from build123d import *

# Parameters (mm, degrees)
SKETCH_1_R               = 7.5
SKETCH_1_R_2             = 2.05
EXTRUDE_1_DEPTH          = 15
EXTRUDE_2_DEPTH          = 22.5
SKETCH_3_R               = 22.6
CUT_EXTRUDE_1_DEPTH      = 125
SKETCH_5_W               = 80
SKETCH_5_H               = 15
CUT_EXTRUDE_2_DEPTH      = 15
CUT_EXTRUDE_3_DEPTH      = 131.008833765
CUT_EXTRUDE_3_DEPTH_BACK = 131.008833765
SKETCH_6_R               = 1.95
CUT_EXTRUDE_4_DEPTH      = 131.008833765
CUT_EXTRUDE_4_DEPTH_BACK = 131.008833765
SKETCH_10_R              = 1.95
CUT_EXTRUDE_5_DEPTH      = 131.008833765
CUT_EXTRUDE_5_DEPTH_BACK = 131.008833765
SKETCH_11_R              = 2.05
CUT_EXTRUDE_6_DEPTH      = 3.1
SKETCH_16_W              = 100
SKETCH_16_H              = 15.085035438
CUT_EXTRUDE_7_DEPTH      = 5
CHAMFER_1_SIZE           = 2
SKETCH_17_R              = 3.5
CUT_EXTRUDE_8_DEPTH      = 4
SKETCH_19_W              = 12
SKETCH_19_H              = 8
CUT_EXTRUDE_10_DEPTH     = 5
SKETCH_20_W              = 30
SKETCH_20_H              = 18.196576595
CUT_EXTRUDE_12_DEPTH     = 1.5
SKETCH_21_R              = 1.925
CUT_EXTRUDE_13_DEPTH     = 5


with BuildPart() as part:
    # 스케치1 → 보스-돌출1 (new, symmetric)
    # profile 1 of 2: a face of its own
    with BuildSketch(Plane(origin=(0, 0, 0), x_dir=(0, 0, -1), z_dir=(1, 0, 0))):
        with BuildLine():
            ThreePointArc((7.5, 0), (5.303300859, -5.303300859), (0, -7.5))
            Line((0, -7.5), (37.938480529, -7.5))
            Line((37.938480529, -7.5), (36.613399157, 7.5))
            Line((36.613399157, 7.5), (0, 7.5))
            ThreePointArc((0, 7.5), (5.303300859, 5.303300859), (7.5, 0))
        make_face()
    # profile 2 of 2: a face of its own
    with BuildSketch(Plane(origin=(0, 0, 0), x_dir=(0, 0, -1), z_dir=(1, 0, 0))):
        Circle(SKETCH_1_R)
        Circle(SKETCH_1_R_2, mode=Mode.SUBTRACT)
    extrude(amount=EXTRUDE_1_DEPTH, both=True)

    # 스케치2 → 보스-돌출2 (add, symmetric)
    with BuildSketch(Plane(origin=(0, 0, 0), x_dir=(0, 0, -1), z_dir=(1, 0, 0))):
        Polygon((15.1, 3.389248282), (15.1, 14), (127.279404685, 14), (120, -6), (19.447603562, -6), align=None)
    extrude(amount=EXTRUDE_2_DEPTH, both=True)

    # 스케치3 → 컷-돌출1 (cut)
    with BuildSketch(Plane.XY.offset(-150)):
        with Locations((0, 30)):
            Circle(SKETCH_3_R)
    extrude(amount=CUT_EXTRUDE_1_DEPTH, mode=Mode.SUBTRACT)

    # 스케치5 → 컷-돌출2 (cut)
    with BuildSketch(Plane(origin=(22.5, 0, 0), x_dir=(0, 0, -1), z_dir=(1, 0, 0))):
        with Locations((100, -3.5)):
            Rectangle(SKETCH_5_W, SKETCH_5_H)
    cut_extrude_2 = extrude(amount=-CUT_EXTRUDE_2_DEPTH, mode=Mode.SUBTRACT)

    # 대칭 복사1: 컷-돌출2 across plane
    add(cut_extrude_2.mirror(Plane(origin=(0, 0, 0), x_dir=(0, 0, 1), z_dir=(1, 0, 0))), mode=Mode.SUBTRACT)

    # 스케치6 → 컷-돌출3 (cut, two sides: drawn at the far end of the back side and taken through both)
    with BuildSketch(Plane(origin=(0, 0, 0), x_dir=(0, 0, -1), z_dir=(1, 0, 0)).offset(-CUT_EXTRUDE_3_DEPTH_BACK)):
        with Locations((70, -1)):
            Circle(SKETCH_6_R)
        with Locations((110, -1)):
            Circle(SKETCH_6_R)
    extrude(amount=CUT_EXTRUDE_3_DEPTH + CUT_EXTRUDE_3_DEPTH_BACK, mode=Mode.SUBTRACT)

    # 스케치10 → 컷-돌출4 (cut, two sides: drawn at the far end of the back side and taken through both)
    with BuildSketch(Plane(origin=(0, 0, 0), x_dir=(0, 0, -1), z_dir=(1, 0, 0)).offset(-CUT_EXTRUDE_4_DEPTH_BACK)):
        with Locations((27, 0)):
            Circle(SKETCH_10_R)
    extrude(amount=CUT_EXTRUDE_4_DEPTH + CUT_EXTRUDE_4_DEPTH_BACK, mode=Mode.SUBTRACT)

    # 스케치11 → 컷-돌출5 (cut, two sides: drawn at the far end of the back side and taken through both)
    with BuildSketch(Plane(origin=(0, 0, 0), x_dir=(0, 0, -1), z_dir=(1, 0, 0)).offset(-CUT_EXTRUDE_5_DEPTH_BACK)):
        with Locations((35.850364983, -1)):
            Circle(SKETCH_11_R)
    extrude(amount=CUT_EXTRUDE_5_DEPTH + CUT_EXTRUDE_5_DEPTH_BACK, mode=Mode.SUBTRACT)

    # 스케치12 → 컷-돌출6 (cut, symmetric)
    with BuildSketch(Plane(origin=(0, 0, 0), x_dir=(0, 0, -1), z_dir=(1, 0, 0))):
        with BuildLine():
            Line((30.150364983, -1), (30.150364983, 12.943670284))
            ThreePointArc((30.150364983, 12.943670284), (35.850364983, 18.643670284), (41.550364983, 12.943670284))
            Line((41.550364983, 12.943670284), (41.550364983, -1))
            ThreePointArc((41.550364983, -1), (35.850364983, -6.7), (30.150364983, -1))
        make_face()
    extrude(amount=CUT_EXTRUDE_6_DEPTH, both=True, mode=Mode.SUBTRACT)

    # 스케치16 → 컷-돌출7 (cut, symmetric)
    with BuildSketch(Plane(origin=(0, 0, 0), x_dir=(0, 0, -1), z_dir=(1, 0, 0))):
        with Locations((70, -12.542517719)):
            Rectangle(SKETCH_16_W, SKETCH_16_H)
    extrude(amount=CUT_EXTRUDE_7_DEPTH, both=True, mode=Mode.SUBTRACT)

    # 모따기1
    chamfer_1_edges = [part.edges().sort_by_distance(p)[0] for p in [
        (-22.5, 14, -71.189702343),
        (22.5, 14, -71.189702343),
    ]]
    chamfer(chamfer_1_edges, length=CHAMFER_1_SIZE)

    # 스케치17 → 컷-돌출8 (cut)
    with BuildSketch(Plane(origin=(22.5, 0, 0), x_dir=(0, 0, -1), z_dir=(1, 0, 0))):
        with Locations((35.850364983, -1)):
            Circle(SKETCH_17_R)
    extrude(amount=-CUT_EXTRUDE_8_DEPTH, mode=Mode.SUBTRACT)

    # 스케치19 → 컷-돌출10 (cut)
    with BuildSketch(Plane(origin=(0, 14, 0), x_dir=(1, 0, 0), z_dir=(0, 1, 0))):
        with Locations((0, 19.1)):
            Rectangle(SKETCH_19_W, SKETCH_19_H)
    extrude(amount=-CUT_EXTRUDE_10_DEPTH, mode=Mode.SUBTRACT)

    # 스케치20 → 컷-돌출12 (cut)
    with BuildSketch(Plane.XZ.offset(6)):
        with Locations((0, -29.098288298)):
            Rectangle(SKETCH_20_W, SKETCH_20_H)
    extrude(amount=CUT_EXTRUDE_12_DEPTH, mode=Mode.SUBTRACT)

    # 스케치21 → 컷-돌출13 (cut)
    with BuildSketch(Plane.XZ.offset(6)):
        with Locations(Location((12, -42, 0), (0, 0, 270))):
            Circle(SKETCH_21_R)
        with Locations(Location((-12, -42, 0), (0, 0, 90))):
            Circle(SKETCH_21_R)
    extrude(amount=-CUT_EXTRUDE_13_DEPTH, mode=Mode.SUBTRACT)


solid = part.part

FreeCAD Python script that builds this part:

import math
import FreeCAD as App
import Part
import Sketcher
Q = App.Units.Quantity


def edges_at(feature, points):
    """Names of the edges that pass closest to the given points."""
    edges = feature.Shape.Edges
    near = lambda p: min(range(len(edges)), key=lambda i: edges[i].distToShape(Part.Vertex(*p))[0])
    return sorted({f"Edge{near(p) + 1}" for p in points})

doc = App.newDocument("Part")
params = doc.addObject("Spreadsheet::Sheet", "Params")
for row, (alias, value) in enumerate([
    ("sketch1_diameter", "4.1 mm"),
    ("sketch1_radius", "7.5 mm"),
    ("pad1_length", "30 mm"),
    ("pad2_length", "45 mm"),
    ("sketch3_diameter", "45.2 mm"),
    ("pocket1_length", "125 mm"),
    ("sketch4_width", "15 mm"),
    ("sketch4_height", "80 mm"),
    ("pocket2_length", "15 mm"),
    ("sketch5_diameter", "3.9 mm"),
    ("sketch6_diameter", "3.9 mm"),
    ("sketch7_diameter", "4.1 mm"),
    ("sketch8_radius", "5.7 mm"),
    ("pocket6_length", "6.2 mm"),
    ("sketch9_height", "100 mm"),
    ("pocket7_length", "10 mm"),
    ("chamfer_size", "2 mm"),
    ("sketch10_diameter", "7 mm"),
    ("pocket8_length", "4 mm"),
    ("sketch11_width", "12 mm"),
    ("sketch11_height", "8 mm"),
    ("pocket9_length", "5 mm"),
    ("sketch12_width", "30 mm"),
    ("pocket10_length", "1.5 mm"),
    ("sketch13_diameter", "3.85 mm"),
    ("pocket11_length", "5 mm"),
], start=1):
    params.set(f"A{row}", alias)
    params.set(f"B{row}", "=" + value)
    params.setAlias(f"B{row}", alias)

body = doc.addObject("PartDesign::Body", "Body")

sketch1 = body.newObject("Sketcher::SketchObject", "Sketch")
sketch1.AttachmentSupport = (doc.getObject("YZ_Plane"), [""])
sketch1.MapMode = "FlatFace"
sketch1.addGeometry([
    Part.LineSegment(App.Vector(-7.5, 0, 0), App.Vector(-7.5, -37.938481, 0)),
    Part.LineSegment(App.Vector(-7.5, -37.938481, 0), App.Vector(7.5, -36.613399, 0)),
    Part.LineSegment(App.Vector(7.5, -36.613399, 0), App.Vector(7.5, 0, 0)),
    Part.ArcOfCircle(Part.Circle(App.Vector(0, 0, 0), App.Vector(0, 0, 1), 7.5), math.radians(0), math.radians(180)),
    Part.Circle(App.Vector(0, 0, 0), App.Vector(0, 0, 1), 2.05),
], False)
sketch1.addConstraint([
    Sketcher.Constraint("Coincident", 0, 2, 1, 1),
    Sketcher.Constraint("Coincident", 1, 2, 2, 1),
    Sketcher.Constraint("Tangent", 2, 2, 3, 1),
    Sketcher.Constraint("Tangent", 3, 2, 0, 1),
    Sketcher.Constraint("Vertical", 0),
    Sketcher.Constraint("Vertical", 2),
    Sketcher.Constraint("Coincident", 3, 3, -1, 1),
    Sketcher.Constraint("Coincident", 4, 3, -1, 1),
    Sketcher.Constraint("Diameter", 4, Q("4.1 mm")),
    Sketcher.Constraint("Radius", 3, Q("7.5 mm")),
    Sketcher.Constraint("DistanceY", 2, 1, 2, 2, Q("36.613399 mm")),
    Sketcher.Constraint("DistanceY", 0, 2, 0, 1, Q("37.938481 mm")),
])
sketch1.setExpression("Constraints[8]", "Params.sketch1_diameter")
sketch1.setExpression("Constraints[9]", "Params.sketch1_radius")
pad1 = body.newObject("PartDesign::Pad", "Pad")
pad1.Profile = sketch1
pad1.setExpression("Length", "Params.pad1_length")
pad1.Midplane = True

sketch2 = body.newObject("Sketcher::SketchObject", "Sketch001")
sketch2.AttachmentSupport = (doc.getObject("YZ_Plane"), [""])
sketch2.MapMode = "FlatFace"
sketch2.addGeometry([
    Part.LineSegment(App.Vector(14, -15.1, 0), App.Vector(3.389248, -15.1, 0)),
    Part.LineSegment(App.Vector(3.389248, -15.1, 0), App.Vector(-6, -19.447604, 0)),
    Part.LineSegment(App.Vector(-6, -19.447604, 0), App.Vector(-6, -120, 0)),
    Part.LineSegment(App.Vector(-6, -120, 0), App.Vector(14, -127.279405, 0)),
    Part.LineSegment(App.Vector(14, -127.279405, 0), App.Vector(14, -15.1, 0)),
], False)
sketch2.addConstraint([
    Sketcher.Constraint("Coincident", 0, 2, 1, 1),
    Sketcher.Constraint("Coincident", 1, 2, 2, 1),
    Sketcher.Constraint("Coincident", 2, 2, 3, 1),
    Sketcher.Constraint("Coincident", 3, 2, 4, 1),
    Sketcher.Constraint("Coincident", 4, 2, 0, 1),
    Sketcher.Constraint("Horizontal", 0),
    Sketcher.Constraint("Vertical", 2),
    Sketcher.Constraint("Vertical", 4),
    Sketcher.Constraint("Angle", 3, Q("-20 deg")),
    Sketcher.Constraint("DistanceX", 1, 2, -1, 1, Q("6 mm")),
    Sketcher.Constraint("DistanceY", 2, 2, -1, 1, Q("120 mm")),
    Sketcher.Constraint("DistanceX", -1, 1, 3, 2, Q("14 mm")),
    Sketcher.Constraint("DistanceY", 0, 2, -1, 1, Q("15.1 mm")),
    Sketcher.Constraint("DistanceX", 0, 2, 0, 1, Q("10.610752 mm")),
    Sketcher.Constraint("DistanceY", 3, 2, 1, 2, Q("107.831801 mm")),
])
pad2 = body.newObject("PartDesign::Pad", "Pad001")
pad2.Profile = sketch2
pad2.setExpression("Length", "Params.pad2_length")
pad2.Midplane = True

sketch3 = body.newObject("Sketcher::SketchObject", "Sketch002")
sketch3.AttachmentSupport = (doc.getObject("XY_Plane"), [""])
sketch3.MapMode = "FlatFace"
sketch3.AttachmentOffset = App.Placement(App.Vector(0, 0, -150), App.Rotation())
sketch3.addGeometry(Part.Circle(App.Vector(0, 30, 0), App.Vector(0, 0, 1), 22.6), False)
sketch3.addConstraint([
    Sketcher.Constraint("PointOnObject", 0, 3, -2),
    Sketcher.Constraint("Diameter", 0, Q("45.2 mm")),
    Sketcher.Constraint("DistanceY", -1, 1, 0, 3, Q("30 mm")),
])
sketch3.setExpression("Constraints[1]", "Params.sketch3_diameter")
pocket1 = body.newObject("PartDesign::Pocket", "Pocket")
pocket1.Profile = sketch3
pocket1.setExpression("Length", "Params.pocket1_length")
pocket1.Reversed = True

sketch4 = body.newObject("Sketcher::SketchObject", "Sketch003")
sketch4.AttachmentSupport = (doc.getObject("YZ_Plane"), [""])
sketch4.MapMode = "FlatFace"
sketch4.AttachmentOffset = App.Placement(App.Vector(0, 0, 22.5), App.Rotation())
sketch4.addGeometry([
    Part.LineSegment(App.Vector(4, -60, 0), App.Vector(-11, -60, 0)),
    Part.LineSegment(App.Vector(-11, -60, 0), App.Vector(-11, -140, 0)),
    Part.LineSegment(App.Vector(-11, -140, 0), App.Vector(4, -140, 0)),
    Part.LineSegment(App.Vector(4, -140, 0), App.Vector(4, -60, 0)),
], False)
sketch4.addConstraint([
    Sketcher.Constraint("Coincident", 0, 2, 1, 1),
    Sketcher.Constraint("Coincident", 1, 2, 2, 1),
    Sketcher.Constraint("Coincident", 2, 2, 3, 1),
    Sketcher.Constraint("Coincident", 3, 2, 0, 1),
    Sketcher.Constraint("Horizontal", 0),
    Sketcher.Constraint("Vertical", 1),
    Sketcher.Constraint("Horizontal", 2),
    Sketcher.Constraint("Vertical", 3),
    Sketcher.Constraint("DistanceX", 0, 2, 0, 1, Q("15 mm")),
    Sketcher.Constraint("DistanceY", 1, 2, 1, 1, Q("80 mm")),
    Sketcher.Constraint("DistanceX", 0, 2, -1, 1, Q("11 mm")),
    Sketcher.Constraint("DistanceY", 0, 2, -1, 1, Q("60 mm")),
])
sketch4.setExpression("Constraints[8]", "Params.sketch4_width")
sketch4.setExpression("Constraints[9]", "Params.sketch4_height")
pocket2 = body.newObject("PartDesign::Pocket", "Pocket001")
pocket2.Profile = sketch4
pocket2.setExpression("Length", "Params.pocket2_length")
doc.recompute()

mirrored = body.newObject("PartDesign::Mirrored", "Mirrored")
mirrored.Originals = [pocket2]
mirrored.MirrorPlane = (doc.getObject("YZ_Plane"), [""])
body.Tip = mirrored

sketch5 = body.newObject("Sketcher::SketchObject", "Sketch004")
sketch5.AttachmentSupport = (doc.getObject("YZ_Plane"), [""])
sketch5.MapMode = "FlatFace"
sketch5.addGeometry([
    Part.Circle(App.Vector(-1, -70, 0), App.Vector(0, 0, 1), 1.95),
    Part.Circle(App.Vector(-1, -110, 0), App.Vector(0, 0, 1), 1.95),
], False)
sketch5.addConstraint([
    Sketcher.Constraint("Equal", 0, 1),
    Sketcher.Constraint("Vertical", 0, 3, 1, 3),
    Sketcher.Constraint("Diameter", 0, Q("3.9 mm")),
    Sketcher.Constraint("DistanceX", 0, 3, -1, 1, Q("1 mm")),
    Sketcher.Constraint("DistanceY", 0, 3, -1, 1, Q("70 mm")),
    Sketcher.Constraint("DistanceY", 1, 3, -1, 1, Q("110 mm")),
])
sketch5.setExpression("Constraints[2]", "Params.sketch5_diameter")
pocket3 = body.newObject("PartDesign::Pocket", "Pocket002")
pocket3.Profile = sketch5
pocket3.Type = "ThroughAll"
pocket3.Midplane = True

sketch6 = body.newObject("Sketcher::SketchObject", "Sketch005")
sketch6.AttachmentSupport = (doc.getObject("YZ_Plane"), [""])
sketch6.MapMode = "FlatFace"
sketch6.addGeometry(Part.Circle(App.Vector(0, -27, 0), App.Vector(0, 0, 1), 1.95), False)
sketch6.addConstraint([
    Sketcher.Constraint("PointOnObject", 0, 3, -2),
    Sketcher.Constraint("Diameter", 0, Q("3.9 mm")),
    Sketcher.Constraint("DistanceY", 0, 3, -1, 1, Q("27 mm")),
])
sketch6.setExpression("Constraints[1]", "Params.sketch6_diameter")
pocket4 = body.newObject("PartDesign::Pocket", "Pocket003")
pocket4.Profile = sketch6
pocket4.Type = "ThroughAll"
pocket4.Midplane = True

sketch7 = body.newObject("Sketcher::SketchObject", "Sketch006")
sketch7.AttachmentSupport = (doc.getObject("YZ_Plane"), [""])
sketch7.MapMode = "FlatFace"
sketch7.addGeometry(Part.Circle(App.Vector(-1, -35.850365, 0), App.Vector(0, 0, 1), 2.05), False)
sketch7.addConstraint([
    Sketcher.Constraint("Diameter", 0, Q("4.1 mm")),
    Sketcher.Constraint("DistanceX", 0, 3, -1, 1, Q("1 mm")),
    Sketcher.Constraint("DistanceY", 0, 3, -1, 1, Q("35.850365 mm")),
])
sketch7.setExpression("Constraints[0]", "Params.sketch7_diameter")
pocket5 = body.newObject("PartDesign::Pocket", "Pocket004")
pocket5.Profile = sketch7
pocket5.Type = "ThroughAll"
pocket5.Midplane = True

sketch8 = body.newObject("Sketcher::SketchObject", "Sketch007")
sketch8.AttachmentSupport = (doc.getObject("YZ_Plane"), [""])
sketch8.MapMode = "FlatFace"
sketch8.addGeometry([
    Part.LineSegment(App.Vector(12.94367, -30.150365, 0), App.Vector(-1, -30.150365, 0)),
    Part.ArcOfCircle(Part.Circle(App.Vector(-1, -35.850365, 0), App.Vector(0, 0, 1), 5.7), math.radians(90), math.radians(270)),
    Part.LineSegment(App.Vector(-1, -41.550365, 0), App.Vector(12.94367, -41.550365, 0)),
    Part.ArcOfCircle(Part.Circle(App.Vector(12.94367, -35.850365, 0), App.Vector(0, 0, 1), 5.7), math.radians(-90), math.radians(90)),
], False)
sketch8.addConstraint([
    Sketcher.Constraint("Tangent", 0, 2, 1, 1),
    Sketcher.Constraint("Tangent", 1, 2, 2, 1),
    Sketcher.Constraint("Tangent", 2, 2, 3, 1),
    Sketcher.Constraint("Tangent", 3, 2, 0, 1),
    Sketcher.Constraint("Horizontal", 0),
    Sketcher.Constraint("Horizontal", 2),
    Sketcher.Constraint("Radius", 1, Q("5.7 mm")),
    Sketcher.Constraint("DistanceX", 1, 3, -1, 1, Q("1 mm")),
    Sketcher.Constraint("DistanceX", 0, 2, 0, 1, Q("13.94367 mm")),
    Sketcher.Constraint("DistanceY", 1, 3, -1, 1, Q("35.850365 mm")),
])
sketch8.setExpression("Constraints[6]", "Params.sketch8_radius")
pocket6 = body.newObject("PartDesign::Pocket", "Pocket005")
pocket6.Profile = sketch8
pocket6.setExpression("Length", "Params.pocket6_length")
pocket6.Midplane = True

sketch9 = body.newObject("Sketcher::SketchObject", "Sketch008")
sketch9.AttachmentSupport = (doc.getObject("YZ_Plane"), [""])
sketch9.MapMode = "FlatFace"
sketch9.addGeometry([
    Part.LineSegment(App.Vector(-5, -20, 0), App.Vector(-20.085035, -20, 0)),
    Part.LineSegment(App.Vector(-20.085035, -20, 0), App.Vector(-20.085035, -120, 0)),
    Part.LineSegment(App.Vector(-20.085035, -120, 0), App.Vector(-5, -120, 0)),
    Part.LineSegment(App.Vector(-5, -120, 0), App.Vector(-5, -20, 0)),
], False)
sketch9.addConstraint([
    Sketcher.Constraint("Coincident", 0, 2, 1, 1),
    Sketcher.Constraint("Coincident", 1, 2, 2, 1),
    Sketcher.Constraint("Coincident", 2, 2, 3, 1),
    Sketcher.Constraint("Coincident", 3, 2, 0, 1),
    Sketcher.Constraint("Horizontal", 0),
    Sketcher.Constraint("Vertical", 1),
    Sketcher.Constraint("Horizontal", 2),
    Sketcher.Constraint("Vertical", 3),
    Sketcher.Constraint("DistanceY", 1, 2, 1, 1, Q("100 mm")),
    Sketcher.Constraint("DistanceY", 0, 2, -1, 1, Q("20 mm")),
    Sketcher.Constraint("DistanceX", 2, 2, -1, 1, Q("5 mm")),
    Sketcher.Constraint("DistanceX", 0, 2, 0, 1, Q("15.085035 mm")),
])
sketch9.setExpression("Constraints[8]", "Params.sketch9_height")
pocket7 = body.newObject("PartDesign::Pocket", "Pocket006")
pocket7.Profile = sketch9
pocket7.setExpression("Length", "Params.pocket7_length")
pocket7.Midplane = True
doc.recompute()

chamfer = body.newObject("PartDesign::Chamfer", "Chamfer")
chamfer.Base = (pocket7, edges_at(pocket7, [(-22.5, 14, -71.19), (22.5, 14, -71.19)]))
chamfer.setExpression("Size", "Params.chamfer_size")

sketch10 = body.newObject("Sketcher::SketchObject", "Sketch009")
sketch10.AttachmentSupport = (doc.getObject("YZ_Plane"), [""])
sketch10.MapMode = "FlatFace"
sketch10.AttachmentOffset = App.Placement(App.Vector(0, 0, 22.5), App.Rotation())
sketch10.addGeometry(Part.Circle(App.Vector(-1, -35.850365, 0), App.Vector(0, 0, 1), 3.5), False)
sketch10.addConstraint([
    Sketcher.Constraint("Diameter", 0, Q("7 mm")),
    Sketcher.Constraint("DistanceX", 0, 3, -1, 1, Q("1 mm")),
    Sketcher.Constraint("DistanceY", 0, 3, -1, 1, Q("35.850365 mm")),
])
sketch10.setExpression("Constraints[0]", "Params.sketch10_diameter")
pocket8 = body.newObject("PartDesign::Pocket", "Pocket007")
pocket8.Profile = sketch10
pocket8.setExpression("Length", "Params.pocket8_length")

sketch11 = body.newObject("Sketcher::SketchObject", "Sketch010")
sketch11.AttachmentSupport = (doc.getObject("XZ_Plane"), [""])
sketch11.MapMode = "FlatFace"
sketch11.AttachmentOffset = App.Placement(App.Vector(0, 0, -14), App.Rotation())
sketch11.addGeometry([
    Part.LineSegment(App.Vector(-6, -23.1, 0), App.Vector(-6, -15.1, 0)),
    Part.LineSegment(App.Vector(-6, -15.1, 0), App.Vector(6, -15.1, 0)),
    Part.LineSegment(App.Vector(6, -15.1, 0), App.Vector(6, -23.1, 0)),
    Part.LineSegment(App.Vector(6, -23.1, 0), App.Vector(-6, -23.1, 0)),
], False)
sketch11.addConstraint([
    Sketcher.Constraint("Coincident", 0, 2, 1, 1),
    Sketcher.Constraint("Coincident", 1, 2, 2, 1),
    Sketcher.Constraint("Coincident", 2, 2, 3, 1),
    Sketcher.Constraint("Coincident", 3, 2, 0, 1),
    Sketcher.Constraint("Vertical", 0),
    Sketcher.Constraint("Horizontal", 1),
    Sketcher.Constraint("Vertical", 2),
    Sketcher.Constraint("Horizontal", 3),
    Sketcher.Constraint("DistanceX", 1, 1, 1, 2, Q("12 mm")),
    Sketcher.Constraint("DistanceY", 0, 1, 0, 2, Q("8 mm")),
    Sketcher.Constraint("DistanceX", 0, 2, -1, 1, Q("6 mm")),
    Sketcher.Constraint("DistanceY", 0, 2, -1, 1, Q("15.1 mm")),
])
sketch11.setExpression("Constraints[8]", "Params.sketch11_width")
sketch11.setExpression("Constraints[9]", "Params.sketch11_height")
pocket9 = body.newObject("PartDesign::Pocket", "Pocket008")
pocket9.Profile = sketch11
pocket9.setExpression("Length", "Params.pocket9_length")
pocket9.Reversed = True

sketch12 = body.newObject("Sketcher::SketchObject", "Sketch011")
sketch12.AttachmentSupport = (doc.getObject("XZ_Plane"), [""])
sketch12.MapMode = "FlatFace"
sketch12.AttachmentOffset = App.Placement(App.Vector(0, 0, 6), App.Rotation())
sketch12.addGeometry([
    Part.LineSegment(App.Vector(-15, -20, 0), App.Vector(-15, -38.196577, 0)),
    Part.LineSegment(App.Vector(-15, -38.196577, 0), App.Vector(15, -38.196577, 0)),
    Part.LineSegment(App.Vector(15, -38.196577, 0), App.Vector(15, -20, 0)),
    Part.LineSegment(App.Vector(15, -20, 0), App.Vector(-15, -20, 0)),
], False)
sketch12.addConstraint([
    Sketcher.Constraint("Coincident", 0, 2, 1, 1),
    Sketcher.Constraint("Coincident", 1, 2, 2, 1),
    Sketcher.Constraint("Coincident", 2, 2, 3, 1),
    Sketcher.Constraint("Coincident", 3, 2, 0, 1),
    Sketcher.Constraint("Vertical", 0),
    Sketcher.Constraint("Horizontal", 1),
    Sketcher.Constraint("Vertical", 2),
    Sketcher.Constraint("Horizontal", 3),
    Sketcher.Constraint("DistanceX", 1, 1, 1, 2, Q("30 mm")),
    Sketcher.Constraint("DistanceX", 0, 2, -1, 1, Q("15 mm")),
    Sketcher.Constraint("DistanceY", 2, 2, -1, 1, Q("20 mm")),
    Sketcher.Constraint("DistanceY", 0, 2, 0, 1, Q("18.196577 mm")),
])
sketch12.setExpression("Constraints[8]", "Params.sketch12_width")
pocket10 = body.newObject("PartDesign::Pocket", "Pocket009")
pocket10.Profile = sketch12
pocket10.setExpression("Length", "Params.pocket10_length")
pocket10.Reversed = True

sketch13 = body.newObject("Sketcher::SketchObject", "Sketch012")
sketch13.AttachmentSupport = (doc.getObject("XZ_Plane"), [""])
sketch13.MapMode = "FlatFace"
sketch13.AttachmentOffset = App.Placement(App.Vector(0, 0, 6), App.Rotation())
sketch13.addGeometry([
    Part.Circle(App.Vector(12, -42, 0), App.Vector(0, 0, 1), 1.925),
    Part.Circle(App.Vector(-12, -42, 0), App.Vector(0, 0, 1), 1.925),
], False)
sketch13.addConstraint([
    Sketcher.Constraint("Equal", 0, 1),
    Sketcher.Constraint("Symmetric", 0, 3, 1, 3, -2),
    Sketcher.Constraint("Diameter", 0, Q("3.85 mm")),
    Sketcher.Constraint("DistanceX", -1, 1, 0, 3, Q("12 mm")),
    Sketcher.Constraint("DistanceY", 0, 3, -1, 1, Q("42 mm")),
])
sketch13.setExpression("Constraints[2]", "Params.sketch13_diameter")
pocket11 = body.newObject("PartDesign::Pocket", "Pocket010")
pocket11.Profile = sketch13
pocket11.setExpression("Length", "Params.pocket11_length")

doc.recompute()
